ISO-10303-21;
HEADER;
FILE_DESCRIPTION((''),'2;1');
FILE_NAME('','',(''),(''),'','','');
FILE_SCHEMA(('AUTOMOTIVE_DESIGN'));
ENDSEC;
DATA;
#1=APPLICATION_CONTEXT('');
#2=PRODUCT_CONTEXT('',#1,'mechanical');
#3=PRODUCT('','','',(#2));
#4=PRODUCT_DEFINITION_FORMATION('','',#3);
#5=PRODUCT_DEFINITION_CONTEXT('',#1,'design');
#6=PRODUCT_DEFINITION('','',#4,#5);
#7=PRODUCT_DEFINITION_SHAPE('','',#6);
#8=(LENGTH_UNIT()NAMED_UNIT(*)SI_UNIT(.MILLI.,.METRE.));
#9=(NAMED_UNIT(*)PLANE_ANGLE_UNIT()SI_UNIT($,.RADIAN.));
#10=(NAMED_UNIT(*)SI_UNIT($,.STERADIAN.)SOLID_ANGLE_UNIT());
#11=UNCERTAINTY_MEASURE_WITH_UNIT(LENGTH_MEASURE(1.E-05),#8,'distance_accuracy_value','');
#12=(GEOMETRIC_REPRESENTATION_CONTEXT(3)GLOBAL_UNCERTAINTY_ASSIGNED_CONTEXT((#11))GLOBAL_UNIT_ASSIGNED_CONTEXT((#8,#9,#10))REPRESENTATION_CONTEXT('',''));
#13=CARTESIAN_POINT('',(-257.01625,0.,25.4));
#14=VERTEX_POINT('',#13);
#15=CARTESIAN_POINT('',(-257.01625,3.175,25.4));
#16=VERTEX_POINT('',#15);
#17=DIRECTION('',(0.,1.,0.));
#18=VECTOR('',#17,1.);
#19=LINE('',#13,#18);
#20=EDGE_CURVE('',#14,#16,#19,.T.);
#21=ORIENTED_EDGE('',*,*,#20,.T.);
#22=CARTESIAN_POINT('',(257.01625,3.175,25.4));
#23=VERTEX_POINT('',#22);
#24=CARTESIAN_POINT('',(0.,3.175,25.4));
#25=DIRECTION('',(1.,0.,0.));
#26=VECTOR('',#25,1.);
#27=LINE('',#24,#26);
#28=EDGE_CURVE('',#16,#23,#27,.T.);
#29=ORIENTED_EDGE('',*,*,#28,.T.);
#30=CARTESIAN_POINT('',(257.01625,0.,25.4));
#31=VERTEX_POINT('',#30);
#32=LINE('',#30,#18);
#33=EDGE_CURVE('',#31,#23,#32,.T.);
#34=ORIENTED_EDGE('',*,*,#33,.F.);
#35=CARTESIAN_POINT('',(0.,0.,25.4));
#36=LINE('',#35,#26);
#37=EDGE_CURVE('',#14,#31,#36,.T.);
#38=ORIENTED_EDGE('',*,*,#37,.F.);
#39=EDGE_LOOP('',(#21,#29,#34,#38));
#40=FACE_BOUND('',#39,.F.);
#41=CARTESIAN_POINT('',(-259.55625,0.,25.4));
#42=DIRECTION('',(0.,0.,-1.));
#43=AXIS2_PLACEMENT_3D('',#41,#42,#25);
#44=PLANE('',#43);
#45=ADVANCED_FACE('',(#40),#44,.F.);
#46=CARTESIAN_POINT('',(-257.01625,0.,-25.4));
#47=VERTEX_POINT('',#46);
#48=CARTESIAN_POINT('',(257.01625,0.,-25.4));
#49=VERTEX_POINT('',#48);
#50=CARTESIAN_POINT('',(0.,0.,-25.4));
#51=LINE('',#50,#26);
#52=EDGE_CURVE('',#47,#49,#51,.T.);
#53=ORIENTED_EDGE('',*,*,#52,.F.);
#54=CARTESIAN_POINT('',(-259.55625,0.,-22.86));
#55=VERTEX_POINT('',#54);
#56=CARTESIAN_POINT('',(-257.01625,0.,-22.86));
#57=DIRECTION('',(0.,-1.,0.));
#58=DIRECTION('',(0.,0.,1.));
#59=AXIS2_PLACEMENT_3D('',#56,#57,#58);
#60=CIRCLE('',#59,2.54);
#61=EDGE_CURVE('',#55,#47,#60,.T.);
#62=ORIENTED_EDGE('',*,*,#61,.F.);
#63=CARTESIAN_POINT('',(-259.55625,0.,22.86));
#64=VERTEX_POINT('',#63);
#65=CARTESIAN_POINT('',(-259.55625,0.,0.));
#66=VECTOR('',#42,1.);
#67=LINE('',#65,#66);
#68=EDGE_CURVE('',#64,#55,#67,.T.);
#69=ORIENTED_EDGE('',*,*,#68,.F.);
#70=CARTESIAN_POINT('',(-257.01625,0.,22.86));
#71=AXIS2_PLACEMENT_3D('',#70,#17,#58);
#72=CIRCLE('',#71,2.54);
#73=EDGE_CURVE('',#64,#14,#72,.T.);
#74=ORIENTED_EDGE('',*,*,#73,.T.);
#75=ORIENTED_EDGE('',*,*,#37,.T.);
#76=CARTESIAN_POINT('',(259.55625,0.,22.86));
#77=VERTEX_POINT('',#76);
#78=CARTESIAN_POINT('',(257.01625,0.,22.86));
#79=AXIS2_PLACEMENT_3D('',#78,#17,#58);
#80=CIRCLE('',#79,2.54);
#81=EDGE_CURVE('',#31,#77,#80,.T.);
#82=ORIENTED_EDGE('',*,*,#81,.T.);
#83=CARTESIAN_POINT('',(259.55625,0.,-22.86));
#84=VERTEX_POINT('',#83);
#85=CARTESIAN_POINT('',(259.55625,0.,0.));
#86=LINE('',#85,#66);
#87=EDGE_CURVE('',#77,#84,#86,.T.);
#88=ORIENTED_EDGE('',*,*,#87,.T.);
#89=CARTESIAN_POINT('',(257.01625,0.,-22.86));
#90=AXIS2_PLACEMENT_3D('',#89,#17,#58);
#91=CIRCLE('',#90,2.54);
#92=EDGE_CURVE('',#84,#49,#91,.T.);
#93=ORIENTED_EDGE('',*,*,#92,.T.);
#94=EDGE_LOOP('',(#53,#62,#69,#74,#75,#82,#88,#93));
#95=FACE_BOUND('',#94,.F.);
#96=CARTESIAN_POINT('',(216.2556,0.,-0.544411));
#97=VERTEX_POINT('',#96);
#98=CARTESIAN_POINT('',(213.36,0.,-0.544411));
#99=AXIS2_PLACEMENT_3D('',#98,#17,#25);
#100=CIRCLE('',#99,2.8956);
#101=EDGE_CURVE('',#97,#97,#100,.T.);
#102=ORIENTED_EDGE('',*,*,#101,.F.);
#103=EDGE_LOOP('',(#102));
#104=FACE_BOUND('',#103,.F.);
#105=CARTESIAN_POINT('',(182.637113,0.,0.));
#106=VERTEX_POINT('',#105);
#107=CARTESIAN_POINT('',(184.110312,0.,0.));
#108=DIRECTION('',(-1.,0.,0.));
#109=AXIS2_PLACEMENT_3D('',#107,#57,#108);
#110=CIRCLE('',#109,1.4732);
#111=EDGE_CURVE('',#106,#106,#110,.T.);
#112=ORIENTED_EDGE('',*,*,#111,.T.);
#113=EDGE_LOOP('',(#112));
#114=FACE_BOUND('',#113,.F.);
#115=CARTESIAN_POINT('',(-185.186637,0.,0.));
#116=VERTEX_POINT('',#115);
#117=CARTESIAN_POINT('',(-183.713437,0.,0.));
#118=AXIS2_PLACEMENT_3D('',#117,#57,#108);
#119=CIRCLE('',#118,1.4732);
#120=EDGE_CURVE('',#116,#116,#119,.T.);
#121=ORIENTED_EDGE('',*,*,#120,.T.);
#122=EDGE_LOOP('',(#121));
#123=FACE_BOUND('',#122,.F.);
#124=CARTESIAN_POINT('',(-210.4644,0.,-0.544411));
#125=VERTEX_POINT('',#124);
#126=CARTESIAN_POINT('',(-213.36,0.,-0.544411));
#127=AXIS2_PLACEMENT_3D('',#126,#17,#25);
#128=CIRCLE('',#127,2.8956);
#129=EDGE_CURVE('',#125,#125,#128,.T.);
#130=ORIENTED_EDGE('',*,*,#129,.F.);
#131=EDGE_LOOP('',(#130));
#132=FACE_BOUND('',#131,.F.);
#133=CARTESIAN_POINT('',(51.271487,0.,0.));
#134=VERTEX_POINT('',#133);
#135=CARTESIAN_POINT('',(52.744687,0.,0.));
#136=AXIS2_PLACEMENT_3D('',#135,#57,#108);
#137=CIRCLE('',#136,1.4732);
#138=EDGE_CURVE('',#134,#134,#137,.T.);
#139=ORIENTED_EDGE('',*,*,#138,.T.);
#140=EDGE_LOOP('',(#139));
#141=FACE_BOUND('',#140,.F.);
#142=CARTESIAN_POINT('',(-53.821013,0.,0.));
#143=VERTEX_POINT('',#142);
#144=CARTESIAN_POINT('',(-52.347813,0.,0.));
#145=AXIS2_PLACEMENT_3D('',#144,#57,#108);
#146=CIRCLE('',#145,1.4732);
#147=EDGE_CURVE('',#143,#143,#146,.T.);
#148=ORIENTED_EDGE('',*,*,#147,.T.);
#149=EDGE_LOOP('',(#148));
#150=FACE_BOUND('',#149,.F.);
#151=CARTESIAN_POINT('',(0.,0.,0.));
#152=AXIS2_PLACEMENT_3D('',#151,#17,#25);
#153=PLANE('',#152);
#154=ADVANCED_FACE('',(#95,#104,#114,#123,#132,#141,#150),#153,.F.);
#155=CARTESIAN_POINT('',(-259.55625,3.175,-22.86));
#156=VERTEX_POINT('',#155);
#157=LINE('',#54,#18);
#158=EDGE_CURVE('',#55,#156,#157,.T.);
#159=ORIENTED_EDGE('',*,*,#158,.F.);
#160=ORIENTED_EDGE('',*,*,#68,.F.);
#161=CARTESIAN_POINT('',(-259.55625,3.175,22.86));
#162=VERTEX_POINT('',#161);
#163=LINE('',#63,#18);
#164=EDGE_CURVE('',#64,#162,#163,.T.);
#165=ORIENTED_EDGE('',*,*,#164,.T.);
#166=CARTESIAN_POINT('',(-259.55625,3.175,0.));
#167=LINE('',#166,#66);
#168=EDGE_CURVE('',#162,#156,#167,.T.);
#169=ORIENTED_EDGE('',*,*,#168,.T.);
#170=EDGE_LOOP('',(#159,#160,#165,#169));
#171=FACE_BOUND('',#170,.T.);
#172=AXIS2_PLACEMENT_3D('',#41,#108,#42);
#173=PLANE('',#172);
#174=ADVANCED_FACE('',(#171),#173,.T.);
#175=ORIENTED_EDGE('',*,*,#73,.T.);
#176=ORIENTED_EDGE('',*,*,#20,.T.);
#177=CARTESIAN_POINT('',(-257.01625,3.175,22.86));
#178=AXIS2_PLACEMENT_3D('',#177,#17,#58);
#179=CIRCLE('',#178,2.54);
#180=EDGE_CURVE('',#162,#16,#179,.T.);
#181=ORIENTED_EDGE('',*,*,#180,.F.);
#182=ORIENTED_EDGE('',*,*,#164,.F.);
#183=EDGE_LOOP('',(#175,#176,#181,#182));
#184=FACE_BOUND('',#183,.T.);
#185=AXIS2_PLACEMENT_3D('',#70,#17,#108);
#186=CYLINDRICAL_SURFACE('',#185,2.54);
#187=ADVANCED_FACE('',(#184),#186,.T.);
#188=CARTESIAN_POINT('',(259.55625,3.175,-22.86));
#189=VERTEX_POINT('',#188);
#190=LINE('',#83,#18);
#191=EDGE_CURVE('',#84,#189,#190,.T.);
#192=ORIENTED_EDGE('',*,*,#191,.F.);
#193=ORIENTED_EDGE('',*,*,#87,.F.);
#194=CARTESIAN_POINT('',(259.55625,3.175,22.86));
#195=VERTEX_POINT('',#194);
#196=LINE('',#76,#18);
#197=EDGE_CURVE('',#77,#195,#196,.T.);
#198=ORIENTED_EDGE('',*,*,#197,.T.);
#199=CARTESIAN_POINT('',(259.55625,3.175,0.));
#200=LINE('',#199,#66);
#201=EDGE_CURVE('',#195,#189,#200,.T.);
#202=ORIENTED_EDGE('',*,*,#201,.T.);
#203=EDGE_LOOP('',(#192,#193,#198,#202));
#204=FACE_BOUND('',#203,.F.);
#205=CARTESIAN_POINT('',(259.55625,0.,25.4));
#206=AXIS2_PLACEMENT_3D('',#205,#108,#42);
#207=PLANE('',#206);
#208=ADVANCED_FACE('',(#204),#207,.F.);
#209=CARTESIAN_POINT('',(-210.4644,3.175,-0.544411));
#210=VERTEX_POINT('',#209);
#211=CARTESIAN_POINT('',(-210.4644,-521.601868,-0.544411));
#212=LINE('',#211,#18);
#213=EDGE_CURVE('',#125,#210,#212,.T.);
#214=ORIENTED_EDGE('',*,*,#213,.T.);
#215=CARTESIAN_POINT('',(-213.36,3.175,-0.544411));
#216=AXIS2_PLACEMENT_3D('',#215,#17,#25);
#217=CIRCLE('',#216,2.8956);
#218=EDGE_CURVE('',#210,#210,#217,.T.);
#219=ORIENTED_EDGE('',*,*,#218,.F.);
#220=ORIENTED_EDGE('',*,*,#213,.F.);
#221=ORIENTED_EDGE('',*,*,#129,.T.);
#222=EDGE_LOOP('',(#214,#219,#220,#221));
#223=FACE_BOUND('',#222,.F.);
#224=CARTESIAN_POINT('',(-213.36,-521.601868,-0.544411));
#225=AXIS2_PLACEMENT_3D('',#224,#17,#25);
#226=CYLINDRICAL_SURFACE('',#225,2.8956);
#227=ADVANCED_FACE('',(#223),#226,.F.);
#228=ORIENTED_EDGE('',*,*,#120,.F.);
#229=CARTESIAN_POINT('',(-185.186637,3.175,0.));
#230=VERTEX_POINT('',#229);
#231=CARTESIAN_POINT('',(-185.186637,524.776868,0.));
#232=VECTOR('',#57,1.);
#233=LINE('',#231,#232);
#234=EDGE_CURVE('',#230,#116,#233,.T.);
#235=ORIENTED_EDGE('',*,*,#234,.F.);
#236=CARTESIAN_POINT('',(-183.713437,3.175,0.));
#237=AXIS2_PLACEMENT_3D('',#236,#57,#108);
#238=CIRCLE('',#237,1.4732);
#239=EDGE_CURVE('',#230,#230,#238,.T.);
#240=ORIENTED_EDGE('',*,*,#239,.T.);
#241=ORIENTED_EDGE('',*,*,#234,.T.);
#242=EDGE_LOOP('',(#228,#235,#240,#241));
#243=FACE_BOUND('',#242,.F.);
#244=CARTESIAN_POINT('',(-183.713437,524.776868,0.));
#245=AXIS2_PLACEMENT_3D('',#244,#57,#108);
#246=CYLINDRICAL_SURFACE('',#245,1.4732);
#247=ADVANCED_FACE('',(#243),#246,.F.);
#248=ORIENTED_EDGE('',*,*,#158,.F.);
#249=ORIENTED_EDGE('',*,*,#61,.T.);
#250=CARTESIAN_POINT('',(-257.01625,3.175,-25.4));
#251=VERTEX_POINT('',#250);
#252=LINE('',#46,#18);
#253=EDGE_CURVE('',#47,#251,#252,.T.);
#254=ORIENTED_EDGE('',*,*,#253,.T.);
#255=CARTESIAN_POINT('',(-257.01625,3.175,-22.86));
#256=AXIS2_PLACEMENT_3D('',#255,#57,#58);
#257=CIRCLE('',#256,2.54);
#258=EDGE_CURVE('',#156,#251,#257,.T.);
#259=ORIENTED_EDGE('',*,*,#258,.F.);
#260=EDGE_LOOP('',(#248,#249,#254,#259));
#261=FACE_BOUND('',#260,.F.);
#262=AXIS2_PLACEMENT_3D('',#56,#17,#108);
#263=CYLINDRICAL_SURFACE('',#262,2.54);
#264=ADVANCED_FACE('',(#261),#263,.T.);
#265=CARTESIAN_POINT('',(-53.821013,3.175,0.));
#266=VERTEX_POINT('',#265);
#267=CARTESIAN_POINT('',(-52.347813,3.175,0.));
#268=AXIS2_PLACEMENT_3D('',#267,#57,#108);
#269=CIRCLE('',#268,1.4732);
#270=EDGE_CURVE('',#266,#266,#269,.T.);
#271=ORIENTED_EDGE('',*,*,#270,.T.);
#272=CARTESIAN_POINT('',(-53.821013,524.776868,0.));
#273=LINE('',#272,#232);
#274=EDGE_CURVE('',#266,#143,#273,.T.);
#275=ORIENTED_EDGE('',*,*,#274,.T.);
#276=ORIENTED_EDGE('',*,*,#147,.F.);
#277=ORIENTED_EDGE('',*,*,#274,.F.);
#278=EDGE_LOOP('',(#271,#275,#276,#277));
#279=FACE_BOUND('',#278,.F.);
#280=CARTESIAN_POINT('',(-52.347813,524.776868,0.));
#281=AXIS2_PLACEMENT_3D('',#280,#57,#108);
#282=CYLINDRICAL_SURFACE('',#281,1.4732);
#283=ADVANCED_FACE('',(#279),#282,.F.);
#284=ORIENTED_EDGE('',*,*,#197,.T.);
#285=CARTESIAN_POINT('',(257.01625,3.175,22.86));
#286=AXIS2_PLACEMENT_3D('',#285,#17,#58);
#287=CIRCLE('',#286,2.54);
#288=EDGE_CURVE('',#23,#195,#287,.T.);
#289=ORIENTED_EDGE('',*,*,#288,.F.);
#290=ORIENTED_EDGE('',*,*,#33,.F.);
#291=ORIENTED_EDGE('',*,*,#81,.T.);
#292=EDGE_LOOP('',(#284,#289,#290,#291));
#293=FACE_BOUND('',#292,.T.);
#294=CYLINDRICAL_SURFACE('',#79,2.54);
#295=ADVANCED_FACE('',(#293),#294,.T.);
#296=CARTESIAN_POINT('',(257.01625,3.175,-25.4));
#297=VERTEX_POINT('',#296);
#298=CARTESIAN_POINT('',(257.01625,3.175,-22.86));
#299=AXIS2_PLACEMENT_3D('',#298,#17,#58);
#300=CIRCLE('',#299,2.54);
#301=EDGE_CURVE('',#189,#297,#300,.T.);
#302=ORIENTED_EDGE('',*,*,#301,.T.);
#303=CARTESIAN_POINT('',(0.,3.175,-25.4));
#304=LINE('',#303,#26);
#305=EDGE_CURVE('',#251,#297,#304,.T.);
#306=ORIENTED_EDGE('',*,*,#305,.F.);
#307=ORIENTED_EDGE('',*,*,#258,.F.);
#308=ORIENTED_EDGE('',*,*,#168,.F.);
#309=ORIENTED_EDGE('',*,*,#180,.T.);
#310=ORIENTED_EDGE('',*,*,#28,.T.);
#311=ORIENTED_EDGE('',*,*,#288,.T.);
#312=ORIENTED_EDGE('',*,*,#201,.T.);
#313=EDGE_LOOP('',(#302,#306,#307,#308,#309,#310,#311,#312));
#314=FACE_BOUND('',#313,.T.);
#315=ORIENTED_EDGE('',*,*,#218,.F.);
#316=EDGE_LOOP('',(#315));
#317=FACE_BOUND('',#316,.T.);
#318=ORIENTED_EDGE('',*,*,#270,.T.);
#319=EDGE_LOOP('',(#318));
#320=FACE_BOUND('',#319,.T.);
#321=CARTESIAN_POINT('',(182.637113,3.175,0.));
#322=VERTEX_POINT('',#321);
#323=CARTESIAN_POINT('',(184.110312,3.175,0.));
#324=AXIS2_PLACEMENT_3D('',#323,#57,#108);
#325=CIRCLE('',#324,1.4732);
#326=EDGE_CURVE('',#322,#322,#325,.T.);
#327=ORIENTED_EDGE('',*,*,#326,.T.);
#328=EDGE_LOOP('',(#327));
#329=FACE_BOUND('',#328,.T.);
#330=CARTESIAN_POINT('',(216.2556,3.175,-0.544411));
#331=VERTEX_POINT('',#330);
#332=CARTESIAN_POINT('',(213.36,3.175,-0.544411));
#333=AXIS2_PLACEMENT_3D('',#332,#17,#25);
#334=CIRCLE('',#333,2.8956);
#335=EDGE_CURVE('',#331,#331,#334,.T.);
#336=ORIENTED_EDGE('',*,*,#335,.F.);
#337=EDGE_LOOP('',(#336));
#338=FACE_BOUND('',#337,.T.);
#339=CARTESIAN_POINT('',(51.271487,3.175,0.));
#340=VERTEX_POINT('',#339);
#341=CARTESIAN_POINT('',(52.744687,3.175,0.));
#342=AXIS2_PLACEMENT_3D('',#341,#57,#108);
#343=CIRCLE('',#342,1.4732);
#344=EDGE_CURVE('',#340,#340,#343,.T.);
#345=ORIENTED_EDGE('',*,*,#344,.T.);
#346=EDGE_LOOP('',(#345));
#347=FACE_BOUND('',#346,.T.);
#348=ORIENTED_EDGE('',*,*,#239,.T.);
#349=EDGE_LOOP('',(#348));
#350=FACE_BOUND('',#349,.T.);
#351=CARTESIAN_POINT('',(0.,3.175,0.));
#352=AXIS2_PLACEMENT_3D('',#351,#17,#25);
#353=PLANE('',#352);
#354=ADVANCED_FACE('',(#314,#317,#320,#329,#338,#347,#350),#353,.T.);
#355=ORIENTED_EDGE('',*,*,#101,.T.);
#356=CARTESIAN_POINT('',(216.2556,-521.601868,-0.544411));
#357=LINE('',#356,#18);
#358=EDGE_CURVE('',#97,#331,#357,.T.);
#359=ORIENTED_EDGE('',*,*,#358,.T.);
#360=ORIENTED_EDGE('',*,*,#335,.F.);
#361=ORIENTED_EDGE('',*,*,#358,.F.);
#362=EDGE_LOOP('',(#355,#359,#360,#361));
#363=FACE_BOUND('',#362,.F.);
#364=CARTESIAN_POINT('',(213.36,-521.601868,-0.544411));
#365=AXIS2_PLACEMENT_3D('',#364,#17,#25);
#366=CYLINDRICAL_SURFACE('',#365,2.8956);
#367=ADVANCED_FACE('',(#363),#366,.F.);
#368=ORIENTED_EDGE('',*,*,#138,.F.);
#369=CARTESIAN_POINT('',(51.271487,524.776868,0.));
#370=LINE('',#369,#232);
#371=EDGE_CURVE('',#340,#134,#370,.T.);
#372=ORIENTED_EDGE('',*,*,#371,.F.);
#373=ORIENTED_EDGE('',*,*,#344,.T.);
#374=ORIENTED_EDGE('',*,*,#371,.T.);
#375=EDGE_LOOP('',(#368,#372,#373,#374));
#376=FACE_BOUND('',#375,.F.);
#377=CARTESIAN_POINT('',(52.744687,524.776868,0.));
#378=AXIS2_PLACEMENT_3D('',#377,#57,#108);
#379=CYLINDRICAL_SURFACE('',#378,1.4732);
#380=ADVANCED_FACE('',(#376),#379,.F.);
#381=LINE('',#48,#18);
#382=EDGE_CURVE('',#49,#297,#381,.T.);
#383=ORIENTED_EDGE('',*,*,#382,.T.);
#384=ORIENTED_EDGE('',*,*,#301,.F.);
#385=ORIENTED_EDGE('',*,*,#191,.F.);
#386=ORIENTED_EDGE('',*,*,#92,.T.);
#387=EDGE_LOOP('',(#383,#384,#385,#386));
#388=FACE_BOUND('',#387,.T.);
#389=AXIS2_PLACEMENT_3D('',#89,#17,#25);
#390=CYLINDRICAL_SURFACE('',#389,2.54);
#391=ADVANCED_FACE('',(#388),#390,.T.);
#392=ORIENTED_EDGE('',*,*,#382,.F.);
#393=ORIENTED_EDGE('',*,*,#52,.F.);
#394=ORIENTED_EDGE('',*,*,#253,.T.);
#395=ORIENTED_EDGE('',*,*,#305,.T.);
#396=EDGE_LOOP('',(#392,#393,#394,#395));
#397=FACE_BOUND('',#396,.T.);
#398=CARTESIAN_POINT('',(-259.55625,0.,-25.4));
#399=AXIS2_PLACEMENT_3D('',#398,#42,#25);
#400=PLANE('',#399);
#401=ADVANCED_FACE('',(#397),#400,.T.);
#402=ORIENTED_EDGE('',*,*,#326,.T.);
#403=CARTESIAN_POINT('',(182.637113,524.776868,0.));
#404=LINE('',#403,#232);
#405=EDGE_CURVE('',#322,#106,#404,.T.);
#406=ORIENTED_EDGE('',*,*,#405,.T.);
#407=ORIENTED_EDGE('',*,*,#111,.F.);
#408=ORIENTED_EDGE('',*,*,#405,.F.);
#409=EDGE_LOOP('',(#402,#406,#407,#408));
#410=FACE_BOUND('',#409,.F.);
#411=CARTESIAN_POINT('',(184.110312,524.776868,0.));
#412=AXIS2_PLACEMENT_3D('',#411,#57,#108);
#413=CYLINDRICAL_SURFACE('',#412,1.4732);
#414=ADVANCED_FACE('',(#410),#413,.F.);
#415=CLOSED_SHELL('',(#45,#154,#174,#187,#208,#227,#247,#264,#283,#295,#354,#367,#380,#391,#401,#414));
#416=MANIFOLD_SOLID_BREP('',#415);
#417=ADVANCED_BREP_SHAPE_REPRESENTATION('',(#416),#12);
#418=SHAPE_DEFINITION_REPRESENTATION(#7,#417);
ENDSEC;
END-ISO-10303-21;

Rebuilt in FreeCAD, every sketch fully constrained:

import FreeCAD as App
import Part
import Sketcher
from FreeCAD import Vector
Q = App.Units.Quantity


def edges_at(feature, points):
    """Names of the edges that pass closest to the given points."""
    edges = feature.Shape.Edges
    near = lambda p: min(range(len(edges)), key=lambda i: edges[i].distToShape(Part.Vertex(*p))[0])
    return sorted({f"Edge{near(p) + 1}" for p in points})

doc = App.newDocument("Part")
body = doc.addObject("PartDesign::Body", "Body")

# Sketch on XZ plane
sketch1 = body.newObject("Sketcher::SketchObject", "Sketch")
sketch1.AttachmentSupport = (doc.getObject("XZ_Plane"), [""])
sketch1.MapMode = "FlatFace"
sketch1.addGeometry([
    Part.LineSegment(Vector(-260, -25, 0), Vector(-260, 25, 0)),
    Part.LineSegment(Vector(-260, 25, 0), Vector(260, 25, 0)),
    Part.LineSegment(Vector(260, 25, 0), Vector(260, -25, 0)),
    Part.LineSegment(Vector(260, -25, 0), Vector(-260, -25, 0)),
], False)
sketch1.addConstraint([
    Sketcher.Constraint("Coincident", 0, 2, 1, 1),
    Sketcher.Constraint("Coincident", 1, 2, 2, 1),
    Sketcher.Constraint("Coincident", 2, 2, 3, 1),
    Sketcher.Constraint("Coincident", 3, 2, 0, 1),
    Sketcher.Constraint("Vertical", 0),
    Sketcher.Constraint("Horizontal", 1),
    Sketcher.Constraint("Vertical", 2),
    Sketcher.Constraint("Horizontal", 3),
    Sketcher.Constraint("Symmetric", 0, 2, 2, 2, -1, 1),
    Sketcher.Constraint("DistanceY", 0, 1, 0, 2, Q("2 in")),
    Sketcher.Constraint("DistanceX", 1, 1, 1, 2, Q("20.4375 in")),
])
pad1 = body.newObject("PartDesign::Pad", "Pad")
pad1.Profile = sketch1
pad1.Length = Q("0.125 in")
pad1.Reversed = True
doc.recompute()

fillet = body.newObject("PartDesign::Fillet", "Fillet")
fillet.Base = (pad1, edges_at(pad1, [
    (259.556, 1.587, 25.4),
    (-259.556, 1.587, 25.4),
    (-259.556, 1.587, -25.4),
    (259.556, 1.587, -25.4),
]))
fillet.Radius = Q("0.1 in")

# Sketch on XZ plane
sketch2 = body.newObject("Sketcher::SketchObject", "Sketch001")
sketch2.AttachmentSupport = (doc.getObject("XZ_Plane"), [""])
sketch2.MapMode = "FlatFace"
sketch2.AttachmentOffset = App.Placement(Vector(0, 0, -0.125 * 25.4), App.Rotation())
sketch2.addGeometry([
    Part.Circle(Vector(184.1, 0, 0), Vector(0, 0, 1), 1.5),
    Part.Circle(Vector(52.7, 0, 0), Vector(0, 0, 1), 1.5),
    Part.Circle(Vector(-52.3, 0, 0), Vector(0, 0, 1), 1.5),
    Part.Circle(Vector(-183.7, 0, 0), Vector(0, 0, 1), 1.5),
], False)
sketch2.addConstraint([
    Sketcher.Constraint("Equal", 0, 1),
    Sketcher.Constraint("Equal", 1, 2),
    Sketcher.Constraint("Equal", 2, 3),
    Sketcher.Constraint("PointOnObject", 0, 3, -1),
    Sketcher.Constraint("PointOnObject", 1, 3, -1),
    Sketcher.Constraint("PointOnObject", 2, 3, -1),
    Sketcher.Constraint("PointOnObject", 3, 3, -1),
    Sketcher.Constraint("Diameter", 0, Q("0.116 in")),
    Sketcher.Constraint("DistanceX", 1, 3, 0, 3, Q("5.171875 in")),
    Sketcher.Constraint("DistanceX", 3, 3, 2, 3, Q("5.171875 in")),
    Sketcher.Constraint("DistanceX", 2, 3, 1, 3, Q("4.1375 in")),
    Sketcher.Constraint("DistanceX", -1, 1, 0, 3, Q("184.110312 mm")),
])
doc.recompute()
hole = body.newObject("PartDesign::Hole", "Hole")
hole.Profile = sketch2
hole.ThreadType = "None"
hole.Diameter = Q("0.116 in")
hole.DepthType = "ThroughAll"
hole.Reversed = True

# Sketch on XZ plane
sketch3 = body.newObject("Sketcher::SketchObject", "Sketch002")
sketch3.AttachmentSupport = (doc.getObject("XZ_Plane"), [""])
sketch3.MapMode = "FlatFace"
sketch3.addGeometry([
    Part.Circle(Vector(213.4, -0.5, 0), Vector(0, 0, 1), 2.9),
    Part.Circle(Vector(-213.4, -0.5, 0), Vector(0, 0, 1), 2.9),
], False)
sketch3.addConstraint([
    Sketcher.Constraint("Equal", 0, 1),
    Sketcher.Constraint("Symmetric", 0, 3, 1, 3, -2),
    Sketcher.Constraint("Diameter", 0, Q("0.228 in")),
    Sketcher.Constraint("DistanceX", -1, 1, 0, 3, Q("8.4 in")),
    Sketcher.Constraint("DistanceY", 0, 3, -1, 1, Q("0.544411 mm")),
])
doc.recompute()
hole2 = body.newObject("PartDesign::Hole", "Hole001")
hole2.Profile = sketch3
hole2.ThreadType = "None"
hole2.Diameter = Q("0.228 in")
hole2.DepthType = "ThroughAll"

doc.recompute()
